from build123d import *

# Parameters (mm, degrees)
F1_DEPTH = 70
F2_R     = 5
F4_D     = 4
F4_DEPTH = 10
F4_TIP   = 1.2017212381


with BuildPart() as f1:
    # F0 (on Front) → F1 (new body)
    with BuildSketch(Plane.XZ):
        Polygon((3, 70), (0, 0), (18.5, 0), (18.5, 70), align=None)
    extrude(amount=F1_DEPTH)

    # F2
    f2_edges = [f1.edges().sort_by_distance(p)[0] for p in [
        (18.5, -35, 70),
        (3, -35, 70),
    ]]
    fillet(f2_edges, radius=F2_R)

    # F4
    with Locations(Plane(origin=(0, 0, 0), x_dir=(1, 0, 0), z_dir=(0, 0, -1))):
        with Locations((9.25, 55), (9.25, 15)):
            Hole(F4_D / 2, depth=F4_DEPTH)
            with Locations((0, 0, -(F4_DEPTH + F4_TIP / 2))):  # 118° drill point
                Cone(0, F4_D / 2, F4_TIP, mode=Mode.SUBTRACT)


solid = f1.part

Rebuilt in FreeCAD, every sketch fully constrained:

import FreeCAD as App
import Part
import Sketcher

V = App.Vector
Q = App.Units.Quantity


def edges_at(feature, points):
    """Names of the edges that pass closest to the given points."""
    edges = feature.Shape.Edges
    near = lambda p: min(range(len(edges)), key=lambda i: edges[i].distToShape(Part.Vertex(*p))[0])
    return sorted({f"Edge{near(p) + 1}" for p in points})


def add_polygon(sketch, points):
    """Adds a closed chain of lines whose ends are joined by coincident constraints."""
    first, n = sketch.GeometryCount, len(points)
    for a, b in zip(points, points[1:] + points[:1]):
        sketch.addGeometry(Part.LineSegment(App.Vector(*a, 0), App.Vector(*b, 0)), False)
    for i in range(n):
        sketch.addConstraint(Sketcher.Constraint("Coincident", first + i, 2, first + (i + 1) % n, 1))

doc = App.newDocument("Part")
body = doc.addObject("PartDesign::Body", "Body")

# Sketch on XZ plane
sketch1 = doc.addObject("Sketcher::SketchObject", "Sketch")
body.addObject(sketch1)
sketch1.AttachmentSupport = (doc.XZ_Plane, [""])
sketch1.MapMode = "FlatFace"
add_polygon(sketch1, [(3, 70), (0, 0), (18, 0), (18, 70)])  # lines 0-3
sketch1.addConstraint([
    Sketcher.Constraint("Horizontal", 1),
    Sketcher.Constraint("Vertical", 2),
    Sketcher.Constraint("Horizontal", 3),
    Sketcher.Constraint("Coincident", 0, 2, -1, 1),
    Sketcher.Constraint("DistanceY", 2, 1, 2, 2, Q("70 mm")),
    Sketcher.Constraint("DistanceX", 1, 1, 1, 2, Q("18.5 mm")),
    Sketcher.Constraint("DistanceX", 3, 2, 3, 1, Q("15.5 mm")),
])
pad1 = doc.addObject("PartDesign::Pad", "Pad")
body.addObject(pad1)
pad1.Profile = sketch1
pad1.Length = 70
doc.recompute()

fillet = doc.addObject("PartDesign::Fillet", "Fillet")
body.addObject(fillet)
fillet.Base = (pad1, edges_at(pad1, [(18.5, -35, 70), (3, -35, 70)]))
fillet.Radius = 5

# Sketch on XY plane
sketch2 = doc.addObject("Sketcher::SketchObject", "Sketch001")
body.addObject(sketch2)
sketch2.AttachmentSupport = (doc.XY_Plane, [""])
sketch2.MapMode = "FlatFace"
sketch2.addGeometry([
    Part.Circle(V(9.2, -55, 0), V(0, 0, 1), 2),
    Part.Circle(V(9.2, -15, 0), V(0, 0, 1), 2),
], False)
sketch2.addConstraint([
    Sketcher.Constraint("Equal", 0, 1),
    Sketcher.Constraint("Vertical", 0, 3, 1, 3),
    Sketcher.Constraint("Diameter", 0, Q("4 mm")),
    Sketcher.Constraint("DistanceY", 0, 3, -1, 1, Q("55 mm")),
    Sketcher.Constraint("DistanceY", 1, 3, -1, 1, Q("15 mm")),
    Sketcher.Constraint("DistanceX", -1, 1, 0, 3, Q("9.25 mm")),
])
doc.recompute()
hole = doc.addObject("PartDesign::Hole", "Hole")
body.addObject(hole)
hole.Profile = sketch2
hole.ThreadType = "None"
hole.Diameter = 4
hole.DepthType = "Dimension"
hole.Depth = 10
hole.DrillPoint = "Angled"
hole.DrillPointAngle = 118
hole.Reversed = True

doc.recompute()
